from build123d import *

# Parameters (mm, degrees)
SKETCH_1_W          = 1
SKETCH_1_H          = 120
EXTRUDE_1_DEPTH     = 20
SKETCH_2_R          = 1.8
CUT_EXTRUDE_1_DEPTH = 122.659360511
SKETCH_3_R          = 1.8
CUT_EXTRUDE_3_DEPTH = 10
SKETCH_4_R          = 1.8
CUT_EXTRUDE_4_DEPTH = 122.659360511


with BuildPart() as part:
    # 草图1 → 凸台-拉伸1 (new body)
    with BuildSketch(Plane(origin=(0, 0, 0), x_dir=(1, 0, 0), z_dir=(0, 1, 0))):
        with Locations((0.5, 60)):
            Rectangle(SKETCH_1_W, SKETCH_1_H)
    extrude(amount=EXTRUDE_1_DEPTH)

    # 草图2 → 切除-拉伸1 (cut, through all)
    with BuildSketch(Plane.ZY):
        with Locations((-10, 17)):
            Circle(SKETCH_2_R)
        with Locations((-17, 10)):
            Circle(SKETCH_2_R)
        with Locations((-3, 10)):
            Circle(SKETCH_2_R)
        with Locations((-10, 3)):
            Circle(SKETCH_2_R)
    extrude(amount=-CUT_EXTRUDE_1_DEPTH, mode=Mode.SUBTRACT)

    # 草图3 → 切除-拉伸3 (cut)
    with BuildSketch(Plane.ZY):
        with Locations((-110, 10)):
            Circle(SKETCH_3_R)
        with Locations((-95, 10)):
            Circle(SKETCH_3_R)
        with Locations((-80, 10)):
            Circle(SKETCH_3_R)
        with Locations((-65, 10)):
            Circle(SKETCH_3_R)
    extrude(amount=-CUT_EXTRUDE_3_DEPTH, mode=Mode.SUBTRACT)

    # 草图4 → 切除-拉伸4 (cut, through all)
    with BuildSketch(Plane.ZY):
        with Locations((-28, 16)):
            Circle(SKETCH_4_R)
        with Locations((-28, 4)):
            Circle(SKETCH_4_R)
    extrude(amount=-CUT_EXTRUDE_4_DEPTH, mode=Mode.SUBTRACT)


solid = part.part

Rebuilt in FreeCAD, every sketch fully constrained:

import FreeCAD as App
import Part
import Sketcher
Q = App.Units.Quantity


def add_polygon(sketch, points):
    """Adds a closed chain of lines whose ends are joined by coincident constraints."""
    first, n = sketch.GeometryCount, len(points)
    for a, b in zip(points, points[1:] + points[:1]):
        sketch.addGeometry(Part.LineSegment(App.Vector(*a, 0), App.Vector(*b, 0)), False)
    for i in range(n):
        sketch.addConstraint(Sketcher.Constraint("Coincident", first + i, 2, first + (i + 1) % n, 1))

doc = App.newDocument("Part")
body = doc.addObject("PartDesign::Body", "Body")

sketch1 = body.newObject("Sketcher::SketchObject", "Sketch")
sketch1.AttachmentSupport = (doc.getObject("XZ_Plane"), [""])
sketch1.MapMode = "FlatFace"
add_polygon(sketch1, [(0, -120), (0, 0), (1, 0), (1, -120)])
sketch1.addConstraint(Sketcher.Constraint("Vertical", 0))
sketch1.addConstraint(Sketcher.Constraint("Horizontal", 1))
sketch1.addConstraint(Sketcher.Constraint("Vertical", 2))
sketch1.addConstraint(Sketcher.Constraint("Horizontal", 3))
sketch1.addConstraint(Sketcher.Constraint("Coincident", 0, 2, -1, 1))
sketch1.addConstraint(Sketcher.Constraint("DistanceX", 1, 1, 1, 2, Q("1 mm")))
sketch1.addConstraint(Sketcher.Constraint("DistanceY", 0, 1, 0, 2, Q("120 mm")))
pad1 = body.newObject("PartDesign::Pad", "Pad")
pad1.Profile = sketch1
pad1.Length = 20
pad1.Reversed = True

sketch2 = body.newObject("Sketcher::SketchObject", "Sketch001")
sketch2.AttachmentSupport = (doc.getObject("YZ_Plane"), [""])
sketch2.MapMode = "FlatFace"
sketch2.addGeometry(Part.Circle(App.Vector(17, -10, 0), App.Vector(0, 0, 1), 1.8), False)
sketch2.addGeometry(Part.Circle(App.Vector(10, -17, 0), App.Vector(0, 0, 1), 1.8), False)
sketch2.addGeometry(Part.Circle(App.Vector(10, -3, 0), App.Vector(0, 0, 1), 1.8), False)
sketch2.addGeometry(Part.Circle(App.Vector(3, -10, 0), App.Vector(0, 0, 1), 1.8), False)
sketch2.addConstraint(Sketcher.Constraint("Equal", 0, 1))
sketch2.addConstraint(Sketcher.Constraint("Equal", 1, 2))
sketch2.addConstraint(Sketcher.Constraint("Equal", 2, 3))
sketch2.addConstraint(Sketcher.Constraint("Horizontal", 0, 3, 3, 3))
sketch2.addConstraint(Sketcher.Constraint("Vertical", 1, 3, 2, 3))
sketch2.addConstraint(Sketcher.Constraint("Diameter", 0, Q("3.6 mm")))
sketch2.addConstraint(Sketcher.Constraint("DistanceX", -1, 1, 0, 3, Q("17 mm")))
sketch2.addConstraint(Sketcher.Constraint("DistanceY", 0, 3, -1, 1, Q("10 mm")))
sketch2.addConstraint(Sketcher.Constraint("DistanceX", -1, 1, 1, 3, Q("10 mm")))
sketch2.addConstraint(Sketcher.Constraint("DistanceY", 1, 3, -1, 1, Q("17 mm")))
sketch2.addConstraint(Sketcher.Constraint("DistanceY", 2, 3, -1, 1, Q("3 mm")))
sketch2.addConstraint(Sketcher.Constraint("DistanceX", -1, 1, 3, 3, Q("3 mm")))
pocket1 = body.newObject("PartDesign::Pocket", "Pocket")
pocket1.Profile = sketch2
pocket1.Type = "ThroughAll"
pocket1.Reversed = True

sketch3 = body.newObject("Sketcher::SketchObject", "Sketch002")
sketch3.AttachmentSupport = (doc.getObject("YZ_Plane"), [""])
sketch3.MapMode = "FlatFace"
sketch3.addGeometry(Part.Circle(App.Vector(10, -110, 0), App.Vector(0, 0, 1), 1.8), False)
sketch3.addGeometry(Part.Circle(App.Vector(10, -95, 0), App.Vector(0, 0, 1), 1.8), False)
sketch3.addGeometry(Part.Circle(App.Vector(10, -80, 0), App.Vector(0, 0, 1), 1.8), False)
sketch3.addGeometry(Part.Circle(App.Vector(10, -65, 0), App.Vector(0, 0, 1), 1.8), False)
sketch3.addConstraint(Sketcher.Constraint("Equal", 0, 1))
sketch3.addConstraint(Sketcher.Constraint("Equal", 1, 2))
sketch3.addConstraint(Sketcher.Constraint("Equal", 2, 3))
sketch3.addConstraint(Sketcher.Constraint("Vertical", 0, 3, 1, 3))
sketch3.addConstraint(Sketcher.Constraint("Vertical", 1, 3, 2, 3))
sketch3.addConstraint(Sketcher.Constraint("Vertical", 2, 3, 3, 3))
sketch3.addConstraint(Sketcher.Constraint("Diameter", 0, Q("3.6 mm")))
sketch3.addConstraint(Sketcher.Constraint("DistanceX", -1, 1, 0, 3, Q("10 mm")))
sketch3.addConstraint(Sketcher.Constraint("DistanceY", 0, 3, -1, 1, Q("110 mm")))
sketch3.addConstraint(Sketcher.Constraint("DistanceY", 1, 3, -1, 1, Q("95 mm")))
sketch3.addConstraint(Sketcher.Constraint("DistanceY", 2, 3, -1, 1, Q("80 mm")))
sketch3.addConstraint(Sketcher.Constraint("DistanceY", 3, 3, -1, 1, Q("65 mm")))
pocket2 = body.newObject("PartDesign::Pocket", "Pocket001")
pocket2.Profile = sketch3
pocket2.Length = 10
pocket2.Reversed = True

sketch4 = body.newObject("Sketcher::SketchObject", "Sketch003")
sketch4.AttachmentSupport = (doc.getObject("YZ_Plane"), [""])
sketch4.MapMode = "FlatFace"
sketch4.addGeometry(Part.Circle(App.Vector(16, -28, 0), App.Vector(0, 0, 1), 1.8), False)
sketch4.addGeometry(Part.Circle(App.Vector(4, -28, 0), App.Vector(0, 0, 1), 1.8), False)
sketch4.addConstraint(Sketcher.Constraint("Equal", 0, 1))
sketch4.addConstraint(Sketcher.Constraint("Horizontal", 0, 3, 1, 3))
sketch4.addConstraint(Sketcher.Constraint("Diameter", 0, Q("3.6 mm")))
sketch4.addConstraint(Sketcher.Constraint("DistanceX", -1, 1, 0, 3, Q("16 mm")))
sketch4.addConstraint(Sketcher.Constraint("DistanceY", 0, 3, -1, 1, Q("28 mm")))
sketch4.addConstraint(Sketcher.Constraint("DistanceX", -1, 1, 1, 3, Q("4 mm")))
pocket3 = body.newObject("PartDesign::Pocket", "Pocket002")
pocket3.Profile = sketch4
pocket3.Type = "ThroughAll"
pocket3.Reversed = True

doc.recompute()
